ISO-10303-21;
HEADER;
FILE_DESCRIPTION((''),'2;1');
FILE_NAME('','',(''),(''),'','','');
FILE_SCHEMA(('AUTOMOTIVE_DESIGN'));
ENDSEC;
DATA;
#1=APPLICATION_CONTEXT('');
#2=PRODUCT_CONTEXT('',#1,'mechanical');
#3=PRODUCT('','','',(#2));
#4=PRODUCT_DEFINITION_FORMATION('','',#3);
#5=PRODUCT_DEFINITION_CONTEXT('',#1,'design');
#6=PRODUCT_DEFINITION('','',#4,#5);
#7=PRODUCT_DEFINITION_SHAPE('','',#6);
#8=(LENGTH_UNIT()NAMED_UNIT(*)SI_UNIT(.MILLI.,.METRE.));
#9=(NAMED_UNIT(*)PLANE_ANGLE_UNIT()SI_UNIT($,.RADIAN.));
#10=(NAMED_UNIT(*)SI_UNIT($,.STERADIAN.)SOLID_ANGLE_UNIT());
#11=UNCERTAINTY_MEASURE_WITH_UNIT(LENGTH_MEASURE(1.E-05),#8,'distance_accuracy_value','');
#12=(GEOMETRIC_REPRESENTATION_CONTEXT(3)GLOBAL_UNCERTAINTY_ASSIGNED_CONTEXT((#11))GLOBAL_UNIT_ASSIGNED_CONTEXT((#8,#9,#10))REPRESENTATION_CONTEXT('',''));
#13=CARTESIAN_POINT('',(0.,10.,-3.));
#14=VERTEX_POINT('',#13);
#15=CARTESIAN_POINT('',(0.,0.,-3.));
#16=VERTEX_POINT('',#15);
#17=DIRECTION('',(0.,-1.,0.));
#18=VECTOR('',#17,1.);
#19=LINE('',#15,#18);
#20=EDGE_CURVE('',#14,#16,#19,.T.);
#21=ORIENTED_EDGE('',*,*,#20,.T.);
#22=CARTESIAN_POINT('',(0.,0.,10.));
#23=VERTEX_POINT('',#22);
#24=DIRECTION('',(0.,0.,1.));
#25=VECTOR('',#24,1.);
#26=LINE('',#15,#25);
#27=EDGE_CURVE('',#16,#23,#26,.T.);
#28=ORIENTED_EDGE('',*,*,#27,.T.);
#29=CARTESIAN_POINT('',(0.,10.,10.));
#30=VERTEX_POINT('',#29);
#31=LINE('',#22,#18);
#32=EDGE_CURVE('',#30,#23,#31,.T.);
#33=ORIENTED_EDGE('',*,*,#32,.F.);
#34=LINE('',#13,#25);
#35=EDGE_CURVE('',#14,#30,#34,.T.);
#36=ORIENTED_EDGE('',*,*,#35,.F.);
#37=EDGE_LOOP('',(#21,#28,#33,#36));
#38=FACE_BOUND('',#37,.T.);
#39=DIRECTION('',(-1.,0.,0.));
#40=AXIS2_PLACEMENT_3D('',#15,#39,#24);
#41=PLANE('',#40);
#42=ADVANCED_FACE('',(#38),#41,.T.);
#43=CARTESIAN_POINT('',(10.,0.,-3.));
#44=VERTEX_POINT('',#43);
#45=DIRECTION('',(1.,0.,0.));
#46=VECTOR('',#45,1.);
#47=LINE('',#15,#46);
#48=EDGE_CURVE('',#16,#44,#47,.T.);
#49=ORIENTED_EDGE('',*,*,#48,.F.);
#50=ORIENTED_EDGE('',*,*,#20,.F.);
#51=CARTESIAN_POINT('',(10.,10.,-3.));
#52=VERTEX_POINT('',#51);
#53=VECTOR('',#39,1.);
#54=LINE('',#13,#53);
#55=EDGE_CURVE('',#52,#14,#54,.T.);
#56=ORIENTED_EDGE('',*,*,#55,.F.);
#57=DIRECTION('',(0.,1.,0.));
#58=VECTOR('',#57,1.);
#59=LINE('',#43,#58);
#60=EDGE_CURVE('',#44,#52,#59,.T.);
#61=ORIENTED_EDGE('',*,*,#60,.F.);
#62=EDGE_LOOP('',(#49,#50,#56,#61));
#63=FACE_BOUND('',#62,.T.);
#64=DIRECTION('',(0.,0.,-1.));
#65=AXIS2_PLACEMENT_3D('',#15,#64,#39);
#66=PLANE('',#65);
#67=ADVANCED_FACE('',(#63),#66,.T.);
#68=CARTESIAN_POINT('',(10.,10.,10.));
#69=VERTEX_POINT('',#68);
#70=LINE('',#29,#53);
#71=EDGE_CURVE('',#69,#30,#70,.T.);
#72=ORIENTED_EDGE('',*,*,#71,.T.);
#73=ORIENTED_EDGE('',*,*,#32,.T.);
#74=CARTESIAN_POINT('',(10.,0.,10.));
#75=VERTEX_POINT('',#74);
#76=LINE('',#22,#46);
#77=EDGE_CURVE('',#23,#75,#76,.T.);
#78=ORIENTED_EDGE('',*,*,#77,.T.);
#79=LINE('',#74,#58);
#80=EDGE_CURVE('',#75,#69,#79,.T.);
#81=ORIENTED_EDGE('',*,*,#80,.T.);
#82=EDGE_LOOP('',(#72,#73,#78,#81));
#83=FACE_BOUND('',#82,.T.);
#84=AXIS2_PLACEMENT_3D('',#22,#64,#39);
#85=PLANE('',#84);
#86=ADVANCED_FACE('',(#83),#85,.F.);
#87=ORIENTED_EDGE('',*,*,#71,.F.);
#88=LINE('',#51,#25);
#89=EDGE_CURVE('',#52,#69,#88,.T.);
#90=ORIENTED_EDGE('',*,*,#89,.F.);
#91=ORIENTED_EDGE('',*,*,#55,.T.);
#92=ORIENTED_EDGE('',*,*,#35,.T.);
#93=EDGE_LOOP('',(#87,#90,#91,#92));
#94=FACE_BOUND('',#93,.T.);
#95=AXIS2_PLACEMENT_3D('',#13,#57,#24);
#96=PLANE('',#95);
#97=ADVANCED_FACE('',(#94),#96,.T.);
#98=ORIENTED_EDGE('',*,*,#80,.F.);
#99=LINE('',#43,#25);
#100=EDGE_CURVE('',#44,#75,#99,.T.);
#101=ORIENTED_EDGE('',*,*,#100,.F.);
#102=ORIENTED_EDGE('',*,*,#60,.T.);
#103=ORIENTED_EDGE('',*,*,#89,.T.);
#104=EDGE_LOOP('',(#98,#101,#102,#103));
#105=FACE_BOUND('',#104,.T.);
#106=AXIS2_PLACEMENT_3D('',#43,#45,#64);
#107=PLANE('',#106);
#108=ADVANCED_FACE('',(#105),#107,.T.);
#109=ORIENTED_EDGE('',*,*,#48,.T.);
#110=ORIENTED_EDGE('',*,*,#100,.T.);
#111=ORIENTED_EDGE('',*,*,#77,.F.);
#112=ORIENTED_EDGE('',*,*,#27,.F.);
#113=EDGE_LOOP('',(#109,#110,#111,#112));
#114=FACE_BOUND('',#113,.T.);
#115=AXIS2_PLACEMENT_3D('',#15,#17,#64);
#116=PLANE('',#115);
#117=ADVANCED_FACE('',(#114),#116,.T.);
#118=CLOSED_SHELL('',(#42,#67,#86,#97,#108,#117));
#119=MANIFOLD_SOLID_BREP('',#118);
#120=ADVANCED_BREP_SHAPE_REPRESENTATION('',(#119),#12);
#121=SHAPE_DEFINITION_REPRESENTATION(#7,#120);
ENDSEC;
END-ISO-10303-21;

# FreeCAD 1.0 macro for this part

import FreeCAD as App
import Part
import Sketcher
from FreeCAD import Vector


def add_polygon(sketch, points):
    """Adds a closed chain of lines whose ends are joined by coincident constraints."""
    first, n = sketch.GeometryCount, len(points)
    for a, b in zip(points, points[1:] + points[:1]):
        sketch.addGeometry(Part.LineSegment(App.Vector(*a, 0), App.Vector(*b, 0)), False)
    for i in range(n):
        sketch.addConstraint(Sketcher.Constraint("Coincident", first + i, 2, first + (i + 1) % n, 1))

doc = App.newDocument("Part")
body = doc.addObject("PartDesign::Body", "Body")

# Sketch on XY plane
sketch1 = doc.addObject("Sketcher::SketchObject", "Sketch")
body.addObject(sketch1)
sketch1.AttachmentSupport = (doc.XY_Plane, [""])
sketch1.MapMode = "FlatFace"
add_polygon(sketch1, [(0, 10), (0, 0), (10, 0), (10, 10)])  # lines 0-3
sketch1.addConstraint([
    Sketcher.Constraint("Vertical", 0),
    Sketcher.Constraint("Horizontal", 1),
    Sketcher.Constraint("Vertical", 2),
    Sketcher.Constraint("Horizontal", 3),
    Sketcher.Constraint("Coincident", 0, 2, -1, 1),
    Sketcher.Constraint("Equal", 3, 0),
    Sketcher.Constraint("DistanceX", 1, 1, 1, 2, 10.0),
])
pad1 = doc.addObject("PartDesign::Pad", "Pad")
body.addObject(pad1)
pad1.Profile = sketch1
pad1.Type = "TwoLengths"
pad1.Length = 10
pad1.Length2 = 3

doc.recompute()
